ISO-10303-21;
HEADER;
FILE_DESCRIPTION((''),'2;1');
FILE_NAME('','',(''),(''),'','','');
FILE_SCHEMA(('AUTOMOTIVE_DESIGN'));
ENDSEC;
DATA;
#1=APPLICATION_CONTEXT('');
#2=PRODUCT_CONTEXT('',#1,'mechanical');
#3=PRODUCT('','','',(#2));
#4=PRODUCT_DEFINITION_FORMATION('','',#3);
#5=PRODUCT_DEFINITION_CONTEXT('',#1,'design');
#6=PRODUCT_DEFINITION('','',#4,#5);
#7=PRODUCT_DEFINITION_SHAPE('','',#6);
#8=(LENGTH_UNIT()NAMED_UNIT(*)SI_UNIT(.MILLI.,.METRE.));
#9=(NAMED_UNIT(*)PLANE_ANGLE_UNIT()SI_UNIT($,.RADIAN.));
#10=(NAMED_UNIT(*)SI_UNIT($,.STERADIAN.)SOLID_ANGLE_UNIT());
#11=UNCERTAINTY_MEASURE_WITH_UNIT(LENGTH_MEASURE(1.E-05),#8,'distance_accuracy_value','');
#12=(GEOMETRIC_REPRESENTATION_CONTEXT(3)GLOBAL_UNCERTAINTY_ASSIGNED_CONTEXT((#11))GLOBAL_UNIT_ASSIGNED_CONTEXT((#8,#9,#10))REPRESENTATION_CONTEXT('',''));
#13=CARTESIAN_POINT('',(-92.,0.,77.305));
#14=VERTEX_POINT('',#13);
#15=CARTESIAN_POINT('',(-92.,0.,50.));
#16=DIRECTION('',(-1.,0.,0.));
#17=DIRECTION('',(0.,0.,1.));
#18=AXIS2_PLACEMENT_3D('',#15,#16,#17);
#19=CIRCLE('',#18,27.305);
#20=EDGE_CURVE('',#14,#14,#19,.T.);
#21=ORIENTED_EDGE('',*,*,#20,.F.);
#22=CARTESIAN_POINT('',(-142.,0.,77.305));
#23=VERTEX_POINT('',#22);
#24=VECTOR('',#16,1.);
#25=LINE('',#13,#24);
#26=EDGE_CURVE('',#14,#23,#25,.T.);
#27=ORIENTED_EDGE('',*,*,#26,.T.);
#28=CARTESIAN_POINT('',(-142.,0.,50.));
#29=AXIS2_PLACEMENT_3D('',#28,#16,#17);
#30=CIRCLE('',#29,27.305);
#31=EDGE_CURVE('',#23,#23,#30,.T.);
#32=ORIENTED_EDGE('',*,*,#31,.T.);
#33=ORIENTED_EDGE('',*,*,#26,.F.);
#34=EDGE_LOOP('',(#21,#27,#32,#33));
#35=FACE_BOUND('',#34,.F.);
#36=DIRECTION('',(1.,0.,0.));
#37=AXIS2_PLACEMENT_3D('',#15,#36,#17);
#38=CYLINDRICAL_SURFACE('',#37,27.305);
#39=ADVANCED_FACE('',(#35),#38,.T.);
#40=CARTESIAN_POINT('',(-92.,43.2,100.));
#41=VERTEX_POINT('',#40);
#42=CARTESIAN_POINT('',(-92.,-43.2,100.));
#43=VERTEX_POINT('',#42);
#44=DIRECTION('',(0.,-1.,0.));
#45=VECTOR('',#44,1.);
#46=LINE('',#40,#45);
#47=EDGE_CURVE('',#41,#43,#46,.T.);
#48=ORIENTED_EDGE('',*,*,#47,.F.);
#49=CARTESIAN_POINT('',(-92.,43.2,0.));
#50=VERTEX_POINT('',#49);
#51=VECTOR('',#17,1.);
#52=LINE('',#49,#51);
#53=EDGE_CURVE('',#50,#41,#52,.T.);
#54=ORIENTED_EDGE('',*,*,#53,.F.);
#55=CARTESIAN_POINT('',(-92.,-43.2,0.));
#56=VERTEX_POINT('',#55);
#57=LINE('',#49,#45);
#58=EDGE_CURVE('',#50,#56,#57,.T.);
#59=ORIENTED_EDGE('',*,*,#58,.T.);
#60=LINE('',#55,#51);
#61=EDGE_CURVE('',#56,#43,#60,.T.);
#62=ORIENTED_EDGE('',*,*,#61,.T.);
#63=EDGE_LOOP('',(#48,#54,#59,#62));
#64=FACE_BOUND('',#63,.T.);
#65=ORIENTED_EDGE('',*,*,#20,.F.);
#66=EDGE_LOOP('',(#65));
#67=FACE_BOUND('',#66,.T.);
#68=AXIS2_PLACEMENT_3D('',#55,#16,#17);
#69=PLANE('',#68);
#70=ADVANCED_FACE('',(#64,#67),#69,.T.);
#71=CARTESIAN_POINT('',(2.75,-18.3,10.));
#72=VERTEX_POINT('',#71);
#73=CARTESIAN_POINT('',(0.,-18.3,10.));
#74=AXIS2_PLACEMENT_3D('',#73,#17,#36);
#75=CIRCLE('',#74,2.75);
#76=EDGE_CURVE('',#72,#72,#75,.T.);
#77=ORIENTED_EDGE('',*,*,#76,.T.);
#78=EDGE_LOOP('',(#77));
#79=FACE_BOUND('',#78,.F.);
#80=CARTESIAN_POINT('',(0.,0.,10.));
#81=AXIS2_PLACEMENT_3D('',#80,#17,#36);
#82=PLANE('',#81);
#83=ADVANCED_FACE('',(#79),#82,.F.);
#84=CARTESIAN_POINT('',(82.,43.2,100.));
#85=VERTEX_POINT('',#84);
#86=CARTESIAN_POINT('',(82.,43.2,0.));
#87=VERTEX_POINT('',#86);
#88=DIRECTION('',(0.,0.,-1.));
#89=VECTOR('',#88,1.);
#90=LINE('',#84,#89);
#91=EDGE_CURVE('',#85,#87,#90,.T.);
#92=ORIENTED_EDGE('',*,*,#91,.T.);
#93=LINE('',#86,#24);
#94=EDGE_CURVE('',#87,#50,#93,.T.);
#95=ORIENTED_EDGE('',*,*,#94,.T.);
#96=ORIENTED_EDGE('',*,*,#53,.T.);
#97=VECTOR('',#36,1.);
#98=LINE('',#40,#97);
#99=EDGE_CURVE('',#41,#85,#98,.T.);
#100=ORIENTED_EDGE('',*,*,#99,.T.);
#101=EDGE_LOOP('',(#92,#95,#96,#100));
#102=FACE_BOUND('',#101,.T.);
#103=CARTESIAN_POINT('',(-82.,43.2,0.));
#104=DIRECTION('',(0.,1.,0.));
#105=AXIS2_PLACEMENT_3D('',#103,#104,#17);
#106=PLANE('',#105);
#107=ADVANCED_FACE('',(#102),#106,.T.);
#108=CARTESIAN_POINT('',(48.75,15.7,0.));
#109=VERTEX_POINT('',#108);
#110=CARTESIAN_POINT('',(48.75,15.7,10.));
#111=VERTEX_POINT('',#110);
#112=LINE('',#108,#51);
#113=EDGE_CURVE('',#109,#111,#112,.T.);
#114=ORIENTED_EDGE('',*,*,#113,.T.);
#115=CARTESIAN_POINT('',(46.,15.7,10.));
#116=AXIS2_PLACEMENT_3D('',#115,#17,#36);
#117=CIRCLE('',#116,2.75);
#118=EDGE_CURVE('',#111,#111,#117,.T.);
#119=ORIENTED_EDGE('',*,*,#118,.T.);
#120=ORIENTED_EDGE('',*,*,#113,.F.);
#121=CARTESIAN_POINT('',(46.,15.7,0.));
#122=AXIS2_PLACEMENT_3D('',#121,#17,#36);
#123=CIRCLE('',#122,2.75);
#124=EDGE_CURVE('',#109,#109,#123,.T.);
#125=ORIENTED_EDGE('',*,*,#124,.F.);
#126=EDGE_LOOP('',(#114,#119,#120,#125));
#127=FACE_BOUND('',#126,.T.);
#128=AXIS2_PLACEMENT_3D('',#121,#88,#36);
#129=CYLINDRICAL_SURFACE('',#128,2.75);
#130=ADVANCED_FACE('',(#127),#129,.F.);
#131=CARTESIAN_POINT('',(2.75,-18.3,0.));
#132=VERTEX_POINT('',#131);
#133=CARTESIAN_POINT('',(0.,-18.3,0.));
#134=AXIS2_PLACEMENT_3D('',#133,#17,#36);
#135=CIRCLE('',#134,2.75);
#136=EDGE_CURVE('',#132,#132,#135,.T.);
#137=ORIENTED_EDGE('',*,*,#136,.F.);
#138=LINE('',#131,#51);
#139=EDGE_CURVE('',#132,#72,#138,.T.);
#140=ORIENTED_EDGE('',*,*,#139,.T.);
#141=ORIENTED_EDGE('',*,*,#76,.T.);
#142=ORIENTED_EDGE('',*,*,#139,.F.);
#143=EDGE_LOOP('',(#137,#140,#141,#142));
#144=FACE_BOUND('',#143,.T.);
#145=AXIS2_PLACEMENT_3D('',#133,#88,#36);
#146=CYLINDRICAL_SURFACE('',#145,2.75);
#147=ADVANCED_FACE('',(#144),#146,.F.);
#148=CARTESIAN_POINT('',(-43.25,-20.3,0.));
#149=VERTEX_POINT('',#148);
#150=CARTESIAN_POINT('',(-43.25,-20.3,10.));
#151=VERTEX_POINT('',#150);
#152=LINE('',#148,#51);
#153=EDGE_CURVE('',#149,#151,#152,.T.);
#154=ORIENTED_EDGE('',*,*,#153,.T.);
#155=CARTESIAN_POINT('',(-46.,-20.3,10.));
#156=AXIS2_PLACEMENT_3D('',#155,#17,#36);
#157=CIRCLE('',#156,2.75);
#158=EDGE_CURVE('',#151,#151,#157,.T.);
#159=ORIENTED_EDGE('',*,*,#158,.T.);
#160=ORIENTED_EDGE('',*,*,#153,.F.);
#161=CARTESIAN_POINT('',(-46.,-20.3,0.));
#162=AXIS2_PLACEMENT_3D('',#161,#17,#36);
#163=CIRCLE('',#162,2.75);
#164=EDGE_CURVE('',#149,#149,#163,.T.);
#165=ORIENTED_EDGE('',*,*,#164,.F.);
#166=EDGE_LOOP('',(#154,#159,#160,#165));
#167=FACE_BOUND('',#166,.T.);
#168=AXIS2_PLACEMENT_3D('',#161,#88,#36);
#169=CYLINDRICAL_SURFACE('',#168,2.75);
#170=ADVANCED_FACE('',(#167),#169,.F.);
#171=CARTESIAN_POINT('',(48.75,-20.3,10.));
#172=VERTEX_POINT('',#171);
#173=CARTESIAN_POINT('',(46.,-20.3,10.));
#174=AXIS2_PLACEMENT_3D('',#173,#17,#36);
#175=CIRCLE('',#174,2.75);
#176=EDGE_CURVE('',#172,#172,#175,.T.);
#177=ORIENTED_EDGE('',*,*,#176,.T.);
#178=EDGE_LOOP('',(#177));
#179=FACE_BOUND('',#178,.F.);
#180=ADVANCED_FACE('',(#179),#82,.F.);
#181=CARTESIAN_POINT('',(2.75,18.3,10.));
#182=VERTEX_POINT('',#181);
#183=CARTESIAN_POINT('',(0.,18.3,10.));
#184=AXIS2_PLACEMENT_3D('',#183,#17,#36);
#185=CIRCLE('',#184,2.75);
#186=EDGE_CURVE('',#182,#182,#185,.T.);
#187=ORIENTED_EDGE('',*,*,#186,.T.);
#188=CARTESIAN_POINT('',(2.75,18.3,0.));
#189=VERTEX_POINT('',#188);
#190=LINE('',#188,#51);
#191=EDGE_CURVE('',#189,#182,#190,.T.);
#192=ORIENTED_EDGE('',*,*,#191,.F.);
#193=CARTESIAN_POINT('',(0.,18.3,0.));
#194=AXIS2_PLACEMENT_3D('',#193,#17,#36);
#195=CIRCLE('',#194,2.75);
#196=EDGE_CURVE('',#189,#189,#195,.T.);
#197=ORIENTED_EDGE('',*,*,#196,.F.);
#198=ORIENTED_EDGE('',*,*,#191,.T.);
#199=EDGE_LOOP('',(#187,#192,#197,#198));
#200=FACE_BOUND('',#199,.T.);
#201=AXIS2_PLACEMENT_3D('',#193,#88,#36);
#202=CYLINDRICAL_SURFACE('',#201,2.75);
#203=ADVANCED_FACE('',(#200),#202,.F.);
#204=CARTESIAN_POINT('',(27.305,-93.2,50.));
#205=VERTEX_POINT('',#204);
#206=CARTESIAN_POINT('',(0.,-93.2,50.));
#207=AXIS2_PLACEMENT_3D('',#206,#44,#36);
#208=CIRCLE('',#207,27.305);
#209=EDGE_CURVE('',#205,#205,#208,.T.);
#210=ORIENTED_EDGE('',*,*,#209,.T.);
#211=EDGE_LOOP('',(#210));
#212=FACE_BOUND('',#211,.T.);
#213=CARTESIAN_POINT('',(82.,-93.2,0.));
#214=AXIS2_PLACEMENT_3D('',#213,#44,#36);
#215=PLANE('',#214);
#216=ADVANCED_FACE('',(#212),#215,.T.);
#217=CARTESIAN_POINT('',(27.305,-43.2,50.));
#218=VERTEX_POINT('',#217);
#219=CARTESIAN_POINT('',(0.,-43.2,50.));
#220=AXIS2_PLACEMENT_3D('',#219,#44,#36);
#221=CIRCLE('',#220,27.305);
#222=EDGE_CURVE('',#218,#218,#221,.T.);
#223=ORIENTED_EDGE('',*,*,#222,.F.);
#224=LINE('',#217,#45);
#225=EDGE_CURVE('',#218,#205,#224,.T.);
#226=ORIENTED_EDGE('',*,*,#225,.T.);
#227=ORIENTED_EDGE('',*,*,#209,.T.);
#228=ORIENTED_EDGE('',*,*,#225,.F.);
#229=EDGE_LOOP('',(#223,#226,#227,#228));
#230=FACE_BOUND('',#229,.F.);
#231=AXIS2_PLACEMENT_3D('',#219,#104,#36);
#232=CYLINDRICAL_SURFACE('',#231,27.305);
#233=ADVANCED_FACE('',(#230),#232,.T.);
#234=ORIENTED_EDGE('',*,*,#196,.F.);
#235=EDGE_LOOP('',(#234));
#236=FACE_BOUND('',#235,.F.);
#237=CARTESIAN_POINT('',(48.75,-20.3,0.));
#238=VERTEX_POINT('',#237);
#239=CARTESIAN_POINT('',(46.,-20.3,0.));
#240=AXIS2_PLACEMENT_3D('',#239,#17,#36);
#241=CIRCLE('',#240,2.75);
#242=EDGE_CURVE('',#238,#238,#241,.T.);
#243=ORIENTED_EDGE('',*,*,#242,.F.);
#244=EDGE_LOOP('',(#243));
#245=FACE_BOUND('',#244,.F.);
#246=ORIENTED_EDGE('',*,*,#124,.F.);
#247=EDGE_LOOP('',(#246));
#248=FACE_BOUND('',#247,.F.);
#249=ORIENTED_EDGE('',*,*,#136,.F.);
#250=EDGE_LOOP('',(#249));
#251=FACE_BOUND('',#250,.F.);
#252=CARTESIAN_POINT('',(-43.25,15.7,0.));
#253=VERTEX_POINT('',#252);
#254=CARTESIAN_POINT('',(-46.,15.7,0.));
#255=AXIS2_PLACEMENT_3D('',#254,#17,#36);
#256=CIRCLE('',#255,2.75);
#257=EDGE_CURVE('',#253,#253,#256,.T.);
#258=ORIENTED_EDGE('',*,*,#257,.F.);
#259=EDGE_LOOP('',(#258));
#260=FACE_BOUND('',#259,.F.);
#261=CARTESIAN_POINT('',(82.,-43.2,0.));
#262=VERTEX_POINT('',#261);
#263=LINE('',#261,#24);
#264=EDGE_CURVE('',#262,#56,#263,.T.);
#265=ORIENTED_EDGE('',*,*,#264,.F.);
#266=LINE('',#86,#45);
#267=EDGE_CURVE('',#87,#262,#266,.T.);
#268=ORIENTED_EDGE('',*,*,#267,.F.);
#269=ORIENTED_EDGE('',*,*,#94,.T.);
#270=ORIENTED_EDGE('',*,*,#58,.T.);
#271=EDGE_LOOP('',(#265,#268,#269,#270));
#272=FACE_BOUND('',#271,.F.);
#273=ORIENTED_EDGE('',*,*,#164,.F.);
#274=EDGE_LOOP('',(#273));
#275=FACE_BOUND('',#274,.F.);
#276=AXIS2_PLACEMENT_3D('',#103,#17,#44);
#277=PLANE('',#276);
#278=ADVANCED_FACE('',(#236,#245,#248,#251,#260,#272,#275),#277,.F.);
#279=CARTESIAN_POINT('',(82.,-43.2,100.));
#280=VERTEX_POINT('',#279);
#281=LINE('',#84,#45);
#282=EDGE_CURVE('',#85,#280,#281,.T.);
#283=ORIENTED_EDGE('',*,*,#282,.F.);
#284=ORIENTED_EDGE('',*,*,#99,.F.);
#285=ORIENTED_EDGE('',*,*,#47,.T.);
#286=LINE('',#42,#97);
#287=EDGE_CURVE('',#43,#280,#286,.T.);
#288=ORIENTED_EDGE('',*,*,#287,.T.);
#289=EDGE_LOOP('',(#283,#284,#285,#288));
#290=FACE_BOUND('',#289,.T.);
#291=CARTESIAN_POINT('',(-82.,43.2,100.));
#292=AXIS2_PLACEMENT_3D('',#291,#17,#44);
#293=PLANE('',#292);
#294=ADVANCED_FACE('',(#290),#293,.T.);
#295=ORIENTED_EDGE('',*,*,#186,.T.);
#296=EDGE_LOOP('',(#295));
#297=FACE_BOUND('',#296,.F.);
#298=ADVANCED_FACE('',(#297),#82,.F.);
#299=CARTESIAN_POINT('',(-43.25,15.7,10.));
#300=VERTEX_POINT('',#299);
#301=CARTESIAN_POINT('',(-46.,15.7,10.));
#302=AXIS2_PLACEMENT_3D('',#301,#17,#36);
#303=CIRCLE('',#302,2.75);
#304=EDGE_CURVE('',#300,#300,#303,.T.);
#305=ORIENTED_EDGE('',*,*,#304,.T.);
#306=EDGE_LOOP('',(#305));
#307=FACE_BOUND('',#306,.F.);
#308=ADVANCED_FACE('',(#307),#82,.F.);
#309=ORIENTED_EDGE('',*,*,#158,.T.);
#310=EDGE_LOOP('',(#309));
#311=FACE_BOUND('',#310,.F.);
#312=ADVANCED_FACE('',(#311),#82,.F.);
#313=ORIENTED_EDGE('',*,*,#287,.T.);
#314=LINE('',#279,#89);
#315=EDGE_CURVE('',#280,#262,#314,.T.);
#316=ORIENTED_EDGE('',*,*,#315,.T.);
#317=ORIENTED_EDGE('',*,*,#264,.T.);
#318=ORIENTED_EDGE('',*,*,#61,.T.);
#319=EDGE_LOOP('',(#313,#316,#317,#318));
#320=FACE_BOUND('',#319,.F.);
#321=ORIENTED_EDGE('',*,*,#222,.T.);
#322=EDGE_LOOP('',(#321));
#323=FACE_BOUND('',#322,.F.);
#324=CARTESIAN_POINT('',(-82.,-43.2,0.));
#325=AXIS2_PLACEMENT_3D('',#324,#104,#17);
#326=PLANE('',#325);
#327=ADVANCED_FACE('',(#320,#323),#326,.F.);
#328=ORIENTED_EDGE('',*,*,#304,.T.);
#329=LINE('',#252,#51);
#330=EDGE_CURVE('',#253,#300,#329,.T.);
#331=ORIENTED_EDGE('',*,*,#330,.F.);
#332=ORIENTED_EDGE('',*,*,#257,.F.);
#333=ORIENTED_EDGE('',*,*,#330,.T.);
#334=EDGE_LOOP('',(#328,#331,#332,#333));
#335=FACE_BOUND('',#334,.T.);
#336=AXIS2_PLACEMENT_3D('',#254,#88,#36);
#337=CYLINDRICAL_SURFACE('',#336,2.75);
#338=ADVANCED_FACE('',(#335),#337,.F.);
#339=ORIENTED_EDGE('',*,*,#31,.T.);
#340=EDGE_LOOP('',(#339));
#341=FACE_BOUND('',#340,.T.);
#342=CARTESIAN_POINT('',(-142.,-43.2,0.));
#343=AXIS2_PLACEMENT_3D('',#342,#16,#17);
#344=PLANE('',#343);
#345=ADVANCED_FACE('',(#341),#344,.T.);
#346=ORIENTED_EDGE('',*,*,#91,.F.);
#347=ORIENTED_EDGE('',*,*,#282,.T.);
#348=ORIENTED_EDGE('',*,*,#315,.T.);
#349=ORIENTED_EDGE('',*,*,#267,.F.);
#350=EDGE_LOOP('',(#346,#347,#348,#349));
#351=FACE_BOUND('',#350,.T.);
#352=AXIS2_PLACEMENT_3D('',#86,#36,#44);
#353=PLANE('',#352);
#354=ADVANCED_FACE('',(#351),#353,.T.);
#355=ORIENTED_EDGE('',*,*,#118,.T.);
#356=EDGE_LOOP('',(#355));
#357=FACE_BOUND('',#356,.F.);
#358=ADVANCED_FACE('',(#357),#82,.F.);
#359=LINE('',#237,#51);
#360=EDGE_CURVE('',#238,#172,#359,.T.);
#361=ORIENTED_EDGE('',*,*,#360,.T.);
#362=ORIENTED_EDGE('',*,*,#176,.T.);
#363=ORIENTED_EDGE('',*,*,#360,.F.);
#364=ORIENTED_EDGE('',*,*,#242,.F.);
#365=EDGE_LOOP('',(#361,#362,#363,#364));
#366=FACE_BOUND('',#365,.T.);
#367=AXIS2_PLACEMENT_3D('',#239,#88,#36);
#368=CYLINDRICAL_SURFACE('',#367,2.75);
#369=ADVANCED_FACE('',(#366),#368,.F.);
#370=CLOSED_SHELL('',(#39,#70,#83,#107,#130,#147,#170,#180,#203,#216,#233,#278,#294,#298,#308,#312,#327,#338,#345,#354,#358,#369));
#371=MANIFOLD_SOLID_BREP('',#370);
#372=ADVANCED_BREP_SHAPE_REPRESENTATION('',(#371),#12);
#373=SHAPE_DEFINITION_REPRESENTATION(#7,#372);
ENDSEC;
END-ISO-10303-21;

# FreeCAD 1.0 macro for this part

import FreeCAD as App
import Part
import Sketcher
Q = App.Units.Quantity


def add_polygon(sketch, points):
    """Adds a closed chain of lines whose ends are joined by coincident constraints."""
    first, n = sketch.GeometryCount, len(points)
    for a, b in zip(points, points[1:] + points[:1]):
        sketch.addGeometry(Part.LineSegment(App.Vector(*a, 0), App.Vector(*b, 0)), False)
    for i in range(n):
        sketch.addConstraint(Sketcher.Constraint("Coincident", first + i, 2, first + (i + 1) % n, 1))

doc = App.newDocument("Part")
body = doc.addObject("PartDesign::Body", "Body")

# Sketch on XY plane
sketch1 = body.newObject("Sketcher::SketchObject", "Sketch")
sketch1.AttachmentSupport = (doc.getObject("XY_Plane"), [""])
sketch1.MapMode = "FlatFace"
add_polygon(sketch1, [(82, 43.2), (-82, 43.2), (-82, -43.2), (82, -43.2)])  # lines 0-3
sketch1.addGeometry(Part.Circle(App.Vector(-46, -20.3, 0), App.Vector(0, 0, 1), 2.8), False)  # 4
sketch1.addGeometry(Part.Circle(App.Vector(0, -18.3, 0), App.Vector(0, 0, 1), 2.8), False)  # 5
sketch1.addGeometry(Part.Circle(App.Vector(46, -20.3, 0), App.Vector(0, 0, 1), 2.8), False)  # 6
sketch1.addGeometry(Part.Circle(App.Vector(-46, 15.7, 0), App.Vector(0, 0, 1), 2.8), False)  # 7
sketch1.addGeometry(Part.Circle(App.Vector(0, 18.3, 0), App.Vector(0, 0, 1), 2.8), False)  # 8
sketch1.addGeometry(Part.Circle(App.Vector(46, 15.7, 0), App.Vector(0, 0, 1), 2.8), False)  # 9
sketch1.addConstraint([
    Sketcher.Constraint("Horizontal", 0),
    Sketcher.Constraint("Vertical", 1),
    Sketcher.Constraint("Horizontal", 2),
    Sketcher.Constraint("Vertical", 3),
    Sketcher.Constraint("Equal", 4, 5),
    Sketcher.Constraint("Equal", 5, 6),
    Sketcher.Constraint("Equal", 6, 7),
    Sketcher.Constraint("Equal", 7, 8),
    Sketcher.Constraint("Equal", 8, 9),
    Sketcher.Constraint("Symmetric", 5, 3, 8, 3, -1, 1),
    Sketcher.Constraint("Symmetric", 0, 2, 2, 2, -1, 1),
    Sketcher.Constraint("Symmetric", 4, 3, 6, 3, -2),
    Sketcher.Constraint("Symmetric", 7, 3, 9, 3, -2),
    Sketcher.Constraint("PointOnObject", 5, 3, -2),
    Sketcher.Constraint("Vertical", 4, 3, 7, 3),
    Sketcher.Constraint("Diameter", 4, Q("5.5 mm")),
    Sketcher.Constraint("DistanceX", 4, 3, -1, 1, Q("46 mm")),
    Sketcher.Constraint("DistanceY", 4, 3, 7, 3, Q("36 mm")),
    Sketcher.Constraint("DistanceX", 0, 2, 7, 3, Q("36 mm")),
    Sketcher.Constraint("DistanceY", -1, 1, 0, 2, Q("43.2 mm")),
    Sketcher.Constraint("DistanceY", 5, 3, 8, 3, Q("36.6 mm")),
    Sketcher.Constraint("DistanceY", 4, 3, 5, 3, Q("2 mm")),
])
pad1 = body.newObject("PartDesign::Pad", "Pad")
pad1.Profile = sketch1
pad1.Length = 10

# Sketch on XY plane
sketch2 = body.newObject("Sketcher::SketchObject", "Sketch001")
sketch2.AttachmentSupport = (doc.getObject("XY_Plane"), [""])
sketch2.MapMode = "FlatFace"
sketch2.AttachmentOffset = App.Placement(App.Vector(0, 0, 10), App.Rotation())
add_polygon(sketch2, [(82, 43), (-82, 43), (-82, -43), (82, -43)])  # lines 0-3
sketch2.addConstraint([
    Sketcher.Constraint("Horizontal", 0),
    Sketcher.Constraint("Vertical", 1),
    Sketcher.Constraint("Horizontal", 2),
    Sketcher.Constraint("Vertical", 3),
    Sketcher.Constraint("Symmetric", 0, 2, 2, 2, -1, 1),
    Sketcher.Constraint("DistanceX", 0, 2, 0, 1, Q("164 mm")),
    Sketcher.Constraint("DistanceY", 1, 2, 1, 1, Q("86.4 mm")),
])
pad2 = body.newObject("PartDesign::Pad", "Pad001")
pad2.Profile = sketch2
pad2.Length = 90

# Sketch on YZ plane
sketch3 = body.newObject("Sketcher::SketchObject", "Sketch002")
sketch3.AttachmentSupport = (doc.getObject("YZ_Plane"), [""])
sketch3.MapMode = "FlatFace"
sketch3.AttachmentOffset = App.Placement(App.Vector(0, 0, -82), App.Rotation())
add_polygon(sketch3, [(43, 100), (43, 0), (-43, 0), (-43, 100)])  # lines 0-3
sketch3.addConstraint([
    Sketcher.Constraint("Vertical", 0),
    Sketcher.Constraint("Horizontal", 1),
    Sketcher.Constraint("Vertical", 2),
    Sketcher.Constraint("Horizontal", 3),
    Sketcher.Constraint("Symmetric", 0, 2, 1, 2, -1, 1),
    Sketcher.Constraint("DistanceY", 0, 2, 0, 1, Q("100 mm")),
    Sketcher.Constraint("DistanceX", 1, 2, 1, 1, Q("86.4 mm")),
])
pad3 = body.newObject("PartDesign::Pad", "Pad002")
pad3.Profile = sketch3
pad3.Length = 10
pad3.Reversed = True

# Sketch on YZ plane
sketch4 = body.newObject("Sketcher::SketchObject", "Sketch003")
sketch4.AttachmentSupport = (doc.getObject("YZ_Plane"), [""])
sketch4.MapMode = "FlatFace"
sketch4.AttachmentOffset = App.Placement(App.Vector(0, 0, -92), App.Rotation())
sketch4.addGeometry(Part.Circle(App.Vector(0, 50, 0), App.Vector(0, 0, 1), 27), False)
sketch4.addConstraint([
    Sketcher.Constraint("PointOnObject", 0, 3, -2),
    Sketcher.Constraint("Diameter", 0, Q("54.61 mm")),
    Sketcher.Constraint("DistanceY", -1, 1, 0, 3, Q("50 mm")),
])
pad4 = body.newObject("PartDesign::Pad", "Pad003")
pad4.Profile = sketch4
pad4.Length = 50
pad4.Reversed = True

# Sketch on XZ plane
sketch5 = body.newObject("Sketcher::SketchObject", "Sketch004")
sketch5.AttachmentSupport = (doc.getObject("XZ_Plane"), [""])
sketch5.MapMode = "FlatFace"
sketch5.AttachmentOffset = App.Placement(App.Vector(0, 0, 43.2), App.Rotation())
sketch5.addGeometry(Part.Circle(App.Vector(0, 50, 0), App.Vector(0, 0, 1), 27), False)
sketch5.addConstraint([
    Sketcher.Constraint("PointOnObject", 0, 3, -2),
    Sketcher.Constraint("Diameter", 0, Q("54.61 mm")),
    Sketcher.Constraint("DistanceY", -1, 1, 0, 3, Q("50 mm")),
])
pad5 = body.newObject("PartDesign::Pad", "Pad004")
pad5.Profile = sketch5
pad5.Length = 50

doc.recompute()
